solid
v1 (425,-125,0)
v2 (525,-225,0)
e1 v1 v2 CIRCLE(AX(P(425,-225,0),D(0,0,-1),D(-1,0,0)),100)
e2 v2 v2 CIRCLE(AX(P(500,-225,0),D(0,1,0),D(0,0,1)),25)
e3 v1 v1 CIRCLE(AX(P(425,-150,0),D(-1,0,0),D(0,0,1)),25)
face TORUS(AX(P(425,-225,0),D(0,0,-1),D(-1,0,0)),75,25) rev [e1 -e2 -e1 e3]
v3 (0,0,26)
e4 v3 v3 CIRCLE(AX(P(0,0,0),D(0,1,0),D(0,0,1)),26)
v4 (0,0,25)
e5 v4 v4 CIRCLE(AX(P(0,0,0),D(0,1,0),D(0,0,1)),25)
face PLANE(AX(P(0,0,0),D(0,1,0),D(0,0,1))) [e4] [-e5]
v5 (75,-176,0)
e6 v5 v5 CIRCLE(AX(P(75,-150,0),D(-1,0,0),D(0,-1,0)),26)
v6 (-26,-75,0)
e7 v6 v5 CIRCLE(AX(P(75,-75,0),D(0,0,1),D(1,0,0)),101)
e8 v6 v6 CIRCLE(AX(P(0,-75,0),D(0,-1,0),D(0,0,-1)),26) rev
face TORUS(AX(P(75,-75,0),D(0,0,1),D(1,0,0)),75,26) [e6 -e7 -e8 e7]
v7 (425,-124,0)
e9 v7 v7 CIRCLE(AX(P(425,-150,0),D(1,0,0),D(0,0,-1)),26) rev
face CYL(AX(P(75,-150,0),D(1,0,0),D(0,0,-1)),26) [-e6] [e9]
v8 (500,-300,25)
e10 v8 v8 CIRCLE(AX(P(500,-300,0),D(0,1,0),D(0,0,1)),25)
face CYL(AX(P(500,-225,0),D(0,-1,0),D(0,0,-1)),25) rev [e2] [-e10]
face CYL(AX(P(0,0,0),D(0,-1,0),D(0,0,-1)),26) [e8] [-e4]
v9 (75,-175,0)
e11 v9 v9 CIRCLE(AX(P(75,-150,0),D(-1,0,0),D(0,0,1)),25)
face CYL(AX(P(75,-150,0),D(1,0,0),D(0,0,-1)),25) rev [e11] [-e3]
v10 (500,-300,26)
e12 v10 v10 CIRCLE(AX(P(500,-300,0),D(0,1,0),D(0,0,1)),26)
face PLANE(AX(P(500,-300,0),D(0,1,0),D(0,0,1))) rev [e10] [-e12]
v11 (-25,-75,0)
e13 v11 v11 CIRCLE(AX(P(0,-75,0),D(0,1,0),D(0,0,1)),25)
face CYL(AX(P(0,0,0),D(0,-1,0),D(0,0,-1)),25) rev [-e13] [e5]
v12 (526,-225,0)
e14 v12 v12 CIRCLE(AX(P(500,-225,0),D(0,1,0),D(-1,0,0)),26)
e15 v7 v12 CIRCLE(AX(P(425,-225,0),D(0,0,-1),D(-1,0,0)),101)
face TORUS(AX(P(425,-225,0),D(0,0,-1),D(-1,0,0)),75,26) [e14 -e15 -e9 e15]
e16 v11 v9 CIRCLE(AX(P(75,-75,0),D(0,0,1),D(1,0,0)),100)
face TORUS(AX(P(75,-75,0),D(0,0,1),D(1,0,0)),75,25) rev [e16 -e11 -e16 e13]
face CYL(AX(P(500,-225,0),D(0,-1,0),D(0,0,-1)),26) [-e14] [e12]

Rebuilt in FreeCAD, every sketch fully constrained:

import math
import FreeCAD as App
import Part
import Sketcher

V = App.Vector

doc = App.newDocument("Part")
body = doc.addObject("PartDesign::Body", "Body")

sketch1 = body.newObject("Sketcher::SketchObject", "Sketch")
sketch1.AttachmentSupport = (doc.getObject("XZ_Plane"), [""])
sketch1.MapMode = "FlatFace"
sketch1.addGeometry(Part.Circle(V(0, 0, 0), V(0, 0, 1), 26), False)
sketch1.addGeometry(Part.Circle(V(0, 0, 0), V(0, 0, 1), 25), False)
sketch1.addConstraint(Sketcher.Constraint("Coincident", 0, 3, -1, 1))
sketch1.addConstraint(Sketcher.Constraint("Coincident", 1, 3, -1, 1))
sketch1.addConstraint(Sketcher.Constraint("Diameter", 0, 52.0))
sketch1.addConstraint(Sketcher.Constraint("Diameter", 1, 50.0))

sketch2 = body.newObject("Sketcher::SketchObject", "Sketch001")
sketch2.AttachmentSupport = (doc.getObject("XY_Plane"), [""])
sketch2.MapMode = "FlatFace"
sketch2.addGeometry(Part.LineSegment(V(0, 0, 0), V(0, -75, 0)), False)
sketch2.addGeometry(Part.ArcOfCircle(Part.Circle(V(75, -75, 0), V(0, 0, 1), 75), math.radians(180), math.radians(270)), False)
sketch2.addGeometry(Part.LineSegment(V(75, -150, 0), V(425, -150, 0)), False)
sketch2.addGeometry(Part.ArcOfCircle(Part.Circle(V(425, -225, 0), V(0, 0, 1), 75), math.radians(0), math.radians(90)), False)
sketch2.addGeometry(Part.LineSegment(V(500, -225, 0), V(500, -300, 0)), False)
sketch2.addConstraint(Sketcher.Constraint("Tangent", 0, 2, 1, 1))
sketch2.addConstraint(Sketcher.Constraint("Tangent", 1, 2, 2, 1))
sketch2.addConstraint(Sketcher.Constraint("Tangent", 2, 2, 3, 2))
sketch2.addConstraint(Sketcher.Constraint("Tangent", 3, 1, 4, 1))
sketch2.addConstraint(Sketcher.Constraint("Vertical", 0))
sketch2.addConstraint(Sketcher.Constraint("Horizontal", 2))
sketch2.addConstraint(Sketcher.Constraint("Vertical", 4))
sketch2.addConstraint(Sketcher.Constraint("Coincident", 0, 1, -1, 1))
sketch2.addConstraint(Sketcher.Constraint("Equal", 1, 3))
sketch2.addConstraint(Sketcher.Constraint("Equal", 0, 4))
sketch2.addConstraint(Sketcher.Constraint("Radius", 1, 75.0))
sketch2.addConstraint(Sketcher.Constraint("DistanceX", 2, 1, 2, 2, 350.0))
sketch2.addConstraint(Sketcher.Constraint("DistanceY", 0, 2, 0, 1, 75.0))
doc.recompute()

additivepipe = body.newObject("PartDesign::AdditivePipe", "AdditivePipe")
additivepipe.Profile = sketch1
additivepipe.Spine = (sketch2, ["Edge1", "Edge2", "Edge3", "Edge4", "Edge5"])

doc.recompute()
